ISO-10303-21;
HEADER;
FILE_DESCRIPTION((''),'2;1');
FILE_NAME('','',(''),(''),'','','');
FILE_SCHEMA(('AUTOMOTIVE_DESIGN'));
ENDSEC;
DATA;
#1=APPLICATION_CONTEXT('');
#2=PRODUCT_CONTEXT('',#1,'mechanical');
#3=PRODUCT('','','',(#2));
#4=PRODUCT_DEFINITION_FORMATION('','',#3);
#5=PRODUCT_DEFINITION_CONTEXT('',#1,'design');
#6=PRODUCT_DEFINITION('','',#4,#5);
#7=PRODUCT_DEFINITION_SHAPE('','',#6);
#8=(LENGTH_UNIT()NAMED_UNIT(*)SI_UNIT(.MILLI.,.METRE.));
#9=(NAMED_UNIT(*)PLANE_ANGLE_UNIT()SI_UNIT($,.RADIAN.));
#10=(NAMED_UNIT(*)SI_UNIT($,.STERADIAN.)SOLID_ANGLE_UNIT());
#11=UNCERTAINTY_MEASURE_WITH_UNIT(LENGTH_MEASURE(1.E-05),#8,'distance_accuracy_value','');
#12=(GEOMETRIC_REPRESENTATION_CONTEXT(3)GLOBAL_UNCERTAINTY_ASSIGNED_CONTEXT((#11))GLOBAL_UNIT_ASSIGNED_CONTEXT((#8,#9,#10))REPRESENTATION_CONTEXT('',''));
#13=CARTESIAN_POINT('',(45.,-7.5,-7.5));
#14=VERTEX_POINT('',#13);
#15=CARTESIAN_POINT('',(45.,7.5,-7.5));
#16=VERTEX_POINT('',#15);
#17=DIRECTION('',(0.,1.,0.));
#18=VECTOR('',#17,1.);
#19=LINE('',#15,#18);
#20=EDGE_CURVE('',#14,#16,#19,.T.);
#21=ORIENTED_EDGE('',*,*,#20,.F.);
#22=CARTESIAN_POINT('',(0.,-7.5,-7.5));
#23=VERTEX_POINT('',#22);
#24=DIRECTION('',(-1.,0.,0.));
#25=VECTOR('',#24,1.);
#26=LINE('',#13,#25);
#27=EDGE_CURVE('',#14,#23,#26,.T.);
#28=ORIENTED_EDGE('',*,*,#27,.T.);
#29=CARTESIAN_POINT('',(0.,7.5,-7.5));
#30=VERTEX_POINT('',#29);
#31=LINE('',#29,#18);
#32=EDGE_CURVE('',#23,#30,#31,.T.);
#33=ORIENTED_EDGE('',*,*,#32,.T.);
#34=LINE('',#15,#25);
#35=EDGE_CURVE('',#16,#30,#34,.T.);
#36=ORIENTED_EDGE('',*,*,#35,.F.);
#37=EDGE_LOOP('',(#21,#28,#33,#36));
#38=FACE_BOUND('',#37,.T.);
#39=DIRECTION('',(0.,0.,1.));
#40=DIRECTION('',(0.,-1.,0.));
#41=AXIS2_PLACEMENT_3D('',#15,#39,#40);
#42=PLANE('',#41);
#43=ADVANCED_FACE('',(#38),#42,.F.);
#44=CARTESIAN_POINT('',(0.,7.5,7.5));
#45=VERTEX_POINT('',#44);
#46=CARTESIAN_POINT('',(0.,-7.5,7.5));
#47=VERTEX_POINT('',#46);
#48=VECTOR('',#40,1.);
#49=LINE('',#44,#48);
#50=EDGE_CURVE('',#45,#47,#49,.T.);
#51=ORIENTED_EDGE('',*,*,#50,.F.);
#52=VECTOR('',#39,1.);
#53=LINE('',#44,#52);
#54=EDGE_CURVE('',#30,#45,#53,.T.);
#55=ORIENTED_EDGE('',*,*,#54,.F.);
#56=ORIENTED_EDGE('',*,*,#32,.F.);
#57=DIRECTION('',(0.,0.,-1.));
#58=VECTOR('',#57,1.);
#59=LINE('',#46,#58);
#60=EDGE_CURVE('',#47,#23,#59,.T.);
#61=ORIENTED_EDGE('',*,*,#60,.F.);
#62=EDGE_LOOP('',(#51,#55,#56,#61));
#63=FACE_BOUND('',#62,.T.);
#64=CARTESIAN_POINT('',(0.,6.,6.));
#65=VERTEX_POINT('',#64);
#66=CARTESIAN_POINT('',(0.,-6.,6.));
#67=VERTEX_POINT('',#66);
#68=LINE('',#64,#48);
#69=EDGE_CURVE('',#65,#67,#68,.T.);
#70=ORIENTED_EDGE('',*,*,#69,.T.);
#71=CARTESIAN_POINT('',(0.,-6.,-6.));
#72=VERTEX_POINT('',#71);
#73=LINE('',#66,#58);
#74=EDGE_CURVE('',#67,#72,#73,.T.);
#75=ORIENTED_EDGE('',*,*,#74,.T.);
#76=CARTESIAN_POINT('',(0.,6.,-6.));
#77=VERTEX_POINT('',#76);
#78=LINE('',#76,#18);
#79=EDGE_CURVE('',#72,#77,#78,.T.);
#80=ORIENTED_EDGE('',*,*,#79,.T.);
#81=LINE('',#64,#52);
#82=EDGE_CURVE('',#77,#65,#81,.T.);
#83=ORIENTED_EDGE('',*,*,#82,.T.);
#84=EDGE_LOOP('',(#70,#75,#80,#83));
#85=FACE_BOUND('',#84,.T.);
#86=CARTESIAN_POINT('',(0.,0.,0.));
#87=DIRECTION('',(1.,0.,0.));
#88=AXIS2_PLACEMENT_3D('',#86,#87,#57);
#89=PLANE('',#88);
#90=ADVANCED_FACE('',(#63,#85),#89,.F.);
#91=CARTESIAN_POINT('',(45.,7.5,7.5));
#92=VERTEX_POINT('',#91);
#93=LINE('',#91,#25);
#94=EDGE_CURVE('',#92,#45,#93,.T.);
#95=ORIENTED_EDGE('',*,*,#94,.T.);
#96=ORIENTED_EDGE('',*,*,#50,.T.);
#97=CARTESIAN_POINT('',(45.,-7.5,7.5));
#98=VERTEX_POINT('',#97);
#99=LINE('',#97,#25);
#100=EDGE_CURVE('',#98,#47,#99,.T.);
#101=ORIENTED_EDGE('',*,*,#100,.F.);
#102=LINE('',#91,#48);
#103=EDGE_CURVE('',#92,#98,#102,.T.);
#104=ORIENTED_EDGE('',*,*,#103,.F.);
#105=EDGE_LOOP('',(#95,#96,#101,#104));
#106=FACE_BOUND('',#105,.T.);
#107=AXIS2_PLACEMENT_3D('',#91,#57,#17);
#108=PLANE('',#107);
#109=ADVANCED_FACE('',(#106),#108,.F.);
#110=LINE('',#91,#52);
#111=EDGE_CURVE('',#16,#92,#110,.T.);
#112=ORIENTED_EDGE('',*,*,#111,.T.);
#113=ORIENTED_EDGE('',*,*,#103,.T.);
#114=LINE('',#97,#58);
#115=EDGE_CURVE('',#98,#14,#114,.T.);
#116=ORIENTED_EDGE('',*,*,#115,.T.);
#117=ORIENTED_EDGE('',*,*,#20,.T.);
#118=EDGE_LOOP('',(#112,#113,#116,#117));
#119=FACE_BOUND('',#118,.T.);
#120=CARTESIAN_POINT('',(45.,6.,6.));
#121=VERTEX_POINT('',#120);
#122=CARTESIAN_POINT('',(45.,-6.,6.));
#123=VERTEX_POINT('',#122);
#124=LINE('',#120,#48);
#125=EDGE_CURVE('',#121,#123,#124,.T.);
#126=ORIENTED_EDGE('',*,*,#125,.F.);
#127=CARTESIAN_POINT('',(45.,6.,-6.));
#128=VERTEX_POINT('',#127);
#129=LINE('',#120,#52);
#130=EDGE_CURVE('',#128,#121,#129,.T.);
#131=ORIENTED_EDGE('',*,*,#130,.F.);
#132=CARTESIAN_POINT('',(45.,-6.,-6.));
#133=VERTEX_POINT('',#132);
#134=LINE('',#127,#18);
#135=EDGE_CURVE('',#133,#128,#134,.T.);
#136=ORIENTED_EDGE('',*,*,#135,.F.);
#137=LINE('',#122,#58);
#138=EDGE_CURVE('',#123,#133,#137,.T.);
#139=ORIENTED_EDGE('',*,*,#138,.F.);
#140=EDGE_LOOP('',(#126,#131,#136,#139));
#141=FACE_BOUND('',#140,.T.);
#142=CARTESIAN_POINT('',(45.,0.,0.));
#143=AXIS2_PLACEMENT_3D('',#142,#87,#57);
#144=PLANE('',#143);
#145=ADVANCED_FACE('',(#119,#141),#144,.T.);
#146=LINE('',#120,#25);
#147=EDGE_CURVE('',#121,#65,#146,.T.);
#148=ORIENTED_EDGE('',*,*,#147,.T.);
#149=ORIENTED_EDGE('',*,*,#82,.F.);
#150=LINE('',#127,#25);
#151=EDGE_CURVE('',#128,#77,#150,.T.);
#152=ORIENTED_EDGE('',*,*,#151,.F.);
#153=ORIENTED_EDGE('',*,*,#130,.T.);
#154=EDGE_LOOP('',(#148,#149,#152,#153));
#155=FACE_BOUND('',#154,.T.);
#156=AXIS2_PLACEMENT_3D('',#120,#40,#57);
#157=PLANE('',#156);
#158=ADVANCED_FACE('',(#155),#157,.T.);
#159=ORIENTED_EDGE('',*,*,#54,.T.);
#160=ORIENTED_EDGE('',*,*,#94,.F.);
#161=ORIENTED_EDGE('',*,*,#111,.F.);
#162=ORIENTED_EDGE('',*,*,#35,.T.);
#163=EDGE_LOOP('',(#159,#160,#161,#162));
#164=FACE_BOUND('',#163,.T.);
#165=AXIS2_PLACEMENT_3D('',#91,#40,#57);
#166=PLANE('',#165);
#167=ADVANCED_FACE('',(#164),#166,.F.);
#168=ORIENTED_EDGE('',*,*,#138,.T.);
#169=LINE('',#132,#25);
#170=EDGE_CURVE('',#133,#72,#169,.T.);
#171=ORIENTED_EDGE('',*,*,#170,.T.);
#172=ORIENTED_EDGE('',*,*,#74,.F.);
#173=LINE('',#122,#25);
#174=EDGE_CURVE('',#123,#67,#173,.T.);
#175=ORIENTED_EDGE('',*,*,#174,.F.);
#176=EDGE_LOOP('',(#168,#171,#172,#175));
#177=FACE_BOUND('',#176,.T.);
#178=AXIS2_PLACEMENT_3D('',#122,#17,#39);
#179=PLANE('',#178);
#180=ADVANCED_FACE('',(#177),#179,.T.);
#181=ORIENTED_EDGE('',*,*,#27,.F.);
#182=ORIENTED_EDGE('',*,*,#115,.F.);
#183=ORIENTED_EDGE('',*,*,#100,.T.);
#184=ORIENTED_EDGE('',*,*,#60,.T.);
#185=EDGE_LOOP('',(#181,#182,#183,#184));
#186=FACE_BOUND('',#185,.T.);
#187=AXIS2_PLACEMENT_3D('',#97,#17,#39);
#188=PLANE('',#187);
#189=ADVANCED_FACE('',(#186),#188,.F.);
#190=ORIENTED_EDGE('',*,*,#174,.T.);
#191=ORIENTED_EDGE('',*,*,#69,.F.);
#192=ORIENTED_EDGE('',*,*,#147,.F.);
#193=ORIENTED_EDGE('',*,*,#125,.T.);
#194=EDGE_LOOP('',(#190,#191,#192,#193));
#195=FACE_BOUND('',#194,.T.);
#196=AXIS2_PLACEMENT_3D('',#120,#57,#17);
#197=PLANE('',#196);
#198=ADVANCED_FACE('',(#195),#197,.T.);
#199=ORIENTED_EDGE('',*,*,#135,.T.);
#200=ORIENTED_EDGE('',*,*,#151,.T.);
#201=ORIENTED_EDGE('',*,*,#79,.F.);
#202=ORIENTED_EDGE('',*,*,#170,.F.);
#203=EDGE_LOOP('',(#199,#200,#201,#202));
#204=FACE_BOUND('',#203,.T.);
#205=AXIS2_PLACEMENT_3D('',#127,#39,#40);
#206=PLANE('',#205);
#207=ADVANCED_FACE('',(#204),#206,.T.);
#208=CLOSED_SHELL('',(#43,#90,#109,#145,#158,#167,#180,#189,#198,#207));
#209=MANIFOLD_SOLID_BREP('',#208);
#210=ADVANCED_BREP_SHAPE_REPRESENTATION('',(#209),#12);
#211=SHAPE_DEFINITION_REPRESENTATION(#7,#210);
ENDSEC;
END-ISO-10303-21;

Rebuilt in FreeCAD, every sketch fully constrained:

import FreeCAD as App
import Part
import Sketcher


def add_polygon(sketch, points):
    """Adds a closed chain of lines whose ends are joined by coincident constraints."""
    first, n = sketch.GeometryCount, len(points)
    for a, b in zip(points, points[1:] + points[:1]):
        sketch.addGeometry(Part.LineSegment(App.Vector(*a, 0), App.Vector(*b, 0)), False)
    for i in range(n):
        sketch.addConstraint(Sketcher.Constraint("Coincident", first + i, 2, first + (i + 1) % n, 1))

doc = App.newDocument("Part")
body = doc.addObject("PartDesign::Body", "Body")

# Sketch on YZ plane
sketch1 = body.newObject("Sketcher::SketchObject", "Sketch")
sketch1.AttachmentSupport = (doc.getObject("YZ_Plane"), [""])
sketch1.MapMode = "FlatFace"
add_polygon(sketch1, [(8, 8), (-8, 8), (-8, -8), (8, -8)])  # lines 0-3
add_polygon(sketch1, [(-6, -6), (-6, 6), (6, 6), (6, -6)])  # lines 4-7
sketch1.addConstraint([
    Sketcher.Constraint("Horizontal", 0),
    Sketcher.Constraint("Vertical", 1),
    Sketcher.Constraint("Horizontal", 2),
    Sketcher.Constraint("Vertical", 3),
    Sketcher.Constraint("Vertical", 4),
    Sketcher.Constraint("Horizontal", 5),
    Sketcher.Constraint("Vertical", 6),
    Sketcher.Constraint("Horizontal", 7),
    Sketcher.Constraint("Symmetric", 0, 2, 2, 2, -1, 1),
    Sketcher.Constraint("Symmetric", 4, 2, 6, 2, -1, 1),
    Sketcher.Constraint("Equal", 2, 1),
    Sketcher.Constraint("Equal", 7, 4),
    Sketcher.Constraint("DistanceX", 0, 2, 0, 1, 15.0),
    Sketcher.Constraint("DistanceX", 5, 1, 5, 2, 12.0),
])
pad1 = body.newObject("PartDesign::Pad", "Pad")
pad1.Profile = sketch1
pad1.Length = 45

doc.recompute()
